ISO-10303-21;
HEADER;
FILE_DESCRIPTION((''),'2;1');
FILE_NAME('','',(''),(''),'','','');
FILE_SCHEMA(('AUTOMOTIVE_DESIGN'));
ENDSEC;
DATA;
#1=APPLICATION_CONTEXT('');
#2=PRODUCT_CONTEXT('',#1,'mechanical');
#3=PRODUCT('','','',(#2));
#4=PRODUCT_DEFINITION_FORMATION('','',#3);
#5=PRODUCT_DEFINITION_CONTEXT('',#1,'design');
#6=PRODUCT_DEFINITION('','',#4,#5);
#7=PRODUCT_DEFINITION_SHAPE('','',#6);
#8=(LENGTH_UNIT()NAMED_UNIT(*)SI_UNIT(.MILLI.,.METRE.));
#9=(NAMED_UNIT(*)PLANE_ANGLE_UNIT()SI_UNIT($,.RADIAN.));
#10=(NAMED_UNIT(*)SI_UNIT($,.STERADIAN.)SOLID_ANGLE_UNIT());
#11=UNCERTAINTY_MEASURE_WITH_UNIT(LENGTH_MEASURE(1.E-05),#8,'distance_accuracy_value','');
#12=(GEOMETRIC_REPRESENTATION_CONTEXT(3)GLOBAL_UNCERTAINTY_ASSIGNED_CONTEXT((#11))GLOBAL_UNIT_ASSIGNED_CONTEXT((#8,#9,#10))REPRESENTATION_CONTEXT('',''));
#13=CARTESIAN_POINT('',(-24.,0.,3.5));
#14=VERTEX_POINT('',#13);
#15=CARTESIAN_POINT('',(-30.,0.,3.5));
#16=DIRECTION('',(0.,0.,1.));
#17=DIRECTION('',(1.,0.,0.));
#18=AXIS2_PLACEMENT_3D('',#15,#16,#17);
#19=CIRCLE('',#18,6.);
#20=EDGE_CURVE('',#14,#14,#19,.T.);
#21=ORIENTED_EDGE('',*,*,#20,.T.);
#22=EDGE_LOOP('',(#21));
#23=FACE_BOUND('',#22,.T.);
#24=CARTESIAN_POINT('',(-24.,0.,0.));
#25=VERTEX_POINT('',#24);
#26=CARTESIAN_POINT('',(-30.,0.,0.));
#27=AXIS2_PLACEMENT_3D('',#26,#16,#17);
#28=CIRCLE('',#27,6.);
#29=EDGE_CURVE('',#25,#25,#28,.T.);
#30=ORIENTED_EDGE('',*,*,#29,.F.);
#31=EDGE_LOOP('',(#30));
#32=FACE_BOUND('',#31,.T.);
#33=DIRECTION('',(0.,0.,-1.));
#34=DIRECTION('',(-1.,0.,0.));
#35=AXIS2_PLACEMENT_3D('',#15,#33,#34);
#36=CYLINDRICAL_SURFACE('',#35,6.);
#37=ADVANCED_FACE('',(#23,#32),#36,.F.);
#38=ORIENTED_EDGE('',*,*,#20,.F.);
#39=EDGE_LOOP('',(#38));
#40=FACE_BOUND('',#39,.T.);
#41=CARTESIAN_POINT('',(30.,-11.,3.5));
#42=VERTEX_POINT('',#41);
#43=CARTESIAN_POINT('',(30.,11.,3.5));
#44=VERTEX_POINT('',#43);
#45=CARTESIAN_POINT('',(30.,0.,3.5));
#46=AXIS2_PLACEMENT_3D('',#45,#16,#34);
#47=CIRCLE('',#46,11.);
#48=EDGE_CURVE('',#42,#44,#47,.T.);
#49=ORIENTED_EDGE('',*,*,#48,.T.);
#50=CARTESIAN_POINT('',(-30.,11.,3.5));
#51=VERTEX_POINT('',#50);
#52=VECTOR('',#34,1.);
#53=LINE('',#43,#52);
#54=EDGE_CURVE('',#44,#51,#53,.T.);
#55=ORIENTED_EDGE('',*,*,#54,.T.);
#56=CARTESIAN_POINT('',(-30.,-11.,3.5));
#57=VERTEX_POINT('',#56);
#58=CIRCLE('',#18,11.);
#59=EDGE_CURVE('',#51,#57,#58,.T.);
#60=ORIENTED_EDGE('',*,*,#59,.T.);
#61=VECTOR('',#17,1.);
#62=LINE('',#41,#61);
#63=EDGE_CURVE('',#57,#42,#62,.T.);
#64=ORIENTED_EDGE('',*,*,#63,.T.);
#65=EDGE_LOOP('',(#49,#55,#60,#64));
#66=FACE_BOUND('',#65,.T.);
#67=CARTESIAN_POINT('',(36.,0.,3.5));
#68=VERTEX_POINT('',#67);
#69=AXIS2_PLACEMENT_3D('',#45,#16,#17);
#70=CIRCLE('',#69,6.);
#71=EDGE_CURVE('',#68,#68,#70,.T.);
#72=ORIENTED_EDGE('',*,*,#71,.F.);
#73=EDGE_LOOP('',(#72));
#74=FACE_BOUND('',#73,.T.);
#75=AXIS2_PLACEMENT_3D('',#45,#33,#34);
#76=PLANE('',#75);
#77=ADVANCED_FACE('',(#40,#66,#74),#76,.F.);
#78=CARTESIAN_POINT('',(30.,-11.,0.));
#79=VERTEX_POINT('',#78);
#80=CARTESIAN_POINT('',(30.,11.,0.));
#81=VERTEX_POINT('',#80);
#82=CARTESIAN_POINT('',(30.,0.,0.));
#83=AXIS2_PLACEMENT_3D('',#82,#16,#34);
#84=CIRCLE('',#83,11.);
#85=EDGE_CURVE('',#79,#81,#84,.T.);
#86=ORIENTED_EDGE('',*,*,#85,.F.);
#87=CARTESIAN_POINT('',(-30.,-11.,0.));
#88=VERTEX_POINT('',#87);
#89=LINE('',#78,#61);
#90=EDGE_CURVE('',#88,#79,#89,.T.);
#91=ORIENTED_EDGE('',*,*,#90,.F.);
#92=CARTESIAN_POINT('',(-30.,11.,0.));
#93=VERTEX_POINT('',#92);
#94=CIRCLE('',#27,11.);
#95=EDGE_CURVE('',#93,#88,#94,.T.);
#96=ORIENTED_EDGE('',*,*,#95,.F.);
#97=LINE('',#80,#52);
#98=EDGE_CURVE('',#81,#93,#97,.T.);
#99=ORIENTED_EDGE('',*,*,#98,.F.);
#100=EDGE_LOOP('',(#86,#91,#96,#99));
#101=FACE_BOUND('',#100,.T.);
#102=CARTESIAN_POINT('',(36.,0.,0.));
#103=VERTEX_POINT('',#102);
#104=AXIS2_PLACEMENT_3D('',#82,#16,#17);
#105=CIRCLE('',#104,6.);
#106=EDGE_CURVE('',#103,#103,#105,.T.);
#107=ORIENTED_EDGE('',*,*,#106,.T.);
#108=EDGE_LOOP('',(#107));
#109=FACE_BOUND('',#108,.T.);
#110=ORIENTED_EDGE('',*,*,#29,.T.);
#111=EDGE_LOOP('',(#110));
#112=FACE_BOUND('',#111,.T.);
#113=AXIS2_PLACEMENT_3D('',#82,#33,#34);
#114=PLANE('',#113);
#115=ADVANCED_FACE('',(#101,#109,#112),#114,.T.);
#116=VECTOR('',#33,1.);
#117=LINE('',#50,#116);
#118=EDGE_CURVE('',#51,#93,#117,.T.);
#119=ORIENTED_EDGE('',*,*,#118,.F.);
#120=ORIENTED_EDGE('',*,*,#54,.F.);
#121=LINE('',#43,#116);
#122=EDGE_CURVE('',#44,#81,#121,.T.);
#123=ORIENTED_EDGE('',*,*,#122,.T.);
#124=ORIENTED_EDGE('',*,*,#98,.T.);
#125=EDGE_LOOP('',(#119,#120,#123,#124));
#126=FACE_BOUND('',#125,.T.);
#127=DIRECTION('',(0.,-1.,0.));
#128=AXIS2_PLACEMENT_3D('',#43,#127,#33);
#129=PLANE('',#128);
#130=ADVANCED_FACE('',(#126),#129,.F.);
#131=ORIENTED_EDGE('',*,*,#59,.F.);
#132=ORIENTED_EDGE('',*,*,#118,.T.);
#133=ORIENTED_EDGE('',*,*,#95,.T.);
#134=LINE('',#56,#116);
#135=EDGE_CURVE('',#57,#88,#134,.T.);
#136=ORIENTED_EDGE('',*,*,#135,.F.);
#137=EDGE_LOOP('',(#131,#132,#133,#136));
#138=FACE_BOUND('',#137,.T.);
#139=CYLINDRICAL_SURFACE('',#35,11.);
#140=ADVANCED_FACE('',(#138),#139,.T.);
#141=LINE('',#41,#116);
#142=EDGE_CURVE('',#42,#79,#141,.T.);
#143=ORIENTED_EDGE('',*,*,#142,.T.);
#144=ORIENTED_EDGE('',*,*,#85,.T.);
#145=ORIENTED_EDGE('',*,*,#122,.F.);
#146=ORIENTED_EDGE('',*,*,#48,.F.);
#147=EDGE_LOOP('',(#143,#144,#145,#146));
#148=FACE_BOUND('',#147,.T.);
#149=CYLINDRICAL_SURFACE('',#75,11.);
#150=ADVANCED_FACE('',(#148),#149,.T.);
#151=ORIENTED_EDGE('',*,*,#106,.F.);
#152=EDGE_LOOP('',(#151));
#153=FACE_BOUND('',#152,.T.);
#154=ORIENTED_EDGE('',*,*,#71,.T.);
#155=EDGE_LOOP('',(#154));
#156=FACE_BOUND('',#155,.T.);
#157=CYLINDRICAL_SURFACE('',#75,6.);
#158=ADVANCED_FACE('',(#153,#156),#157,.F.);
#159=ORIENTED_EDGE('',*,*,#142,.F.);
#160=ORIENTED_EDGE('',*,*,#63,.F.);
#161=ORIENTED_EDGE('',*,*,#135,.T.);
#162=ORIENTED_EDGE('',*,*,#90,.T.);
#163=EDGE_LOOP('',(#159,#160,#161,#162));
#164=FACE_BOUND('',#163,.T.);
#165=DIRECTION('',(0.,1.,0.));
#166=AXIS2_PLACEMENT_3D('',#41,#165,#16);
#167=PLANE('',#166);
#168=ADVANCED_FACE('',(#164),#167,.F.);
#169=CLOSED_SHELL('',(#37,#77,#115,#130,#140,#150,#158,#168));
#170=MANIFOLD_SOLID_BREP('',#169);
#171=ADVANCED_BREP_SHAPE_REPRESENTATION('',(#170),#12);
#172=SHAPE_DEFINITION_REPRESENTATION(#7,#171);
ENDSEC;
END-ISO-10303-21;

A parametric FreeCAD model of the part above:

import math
import FreeCAD as App
import Part
import Sketcher

doc = App.newDocument("Part")
params = doc.addObject("Spreadsheet::Sheet", "Params")
for row, (alias, value) in enumerate([
    ("sketch1_diameter", "12 mm"),
    ("sketch1_radius", "11 mm"),
    ("sketch1_width", "60 mm"),
    ("pad1_length", "3.5 mm"),
], start=1):
    params.set(f"A{row}", alias)
    params.set(f"B{row}", "=" + value)
    params.setAlias(f"B{row}", alias)

body = doc.addObject("PartDesign::Body", "Body")

# Sketch on XY plane
sketch1 = body.newObject("Sketcher::SketchObject", "Sketch")
sketch1.AttachmentSupport = (doc.getObject("XY_Plane"), [""])
sketch1.MapMode = "FlatFace"
sketch1.addGeometry([
    Part.LineSegment(App.Vector(30, 11, 0), App.Vector(-30, 11, 0)),  # 0
    Part.ArcOfCircle(Part.Circle(App.Vector(-30, 0, 0), App.Vector(0, 0, 1), 11), math.radians(90), math.radians(270)),  # 1
    Part.LineSegment(App.Vector(-30, -11, 0), App.Vector(30, -11, 0)),  # 2
    Part.ArcOfCircle(Part.Circle(App.Vector(30, 0, 0), App.Vector(0, 0, 1), 11), math.radians(-90), math.radians(90)),  # 3
    Part.Circle(App.Vector(-30, 0, 0), App.Vector(0, 0, 1), 6),  # 4
    Part.Circle(App.Vector(30, 0, 0), App.Vector(0, 0, 1), 6),  # 5
], False)
sketch1.addConstraint([
    Sketcher.Constraint("Tangent", 0, 2, 1, 1),
    Sketcher.Constraint("Tangent", 1, 2, 2, 1),
    Sketcher.Constraint("Tangent", 2, 2, 3, 1),
    Sketcher.Constraint("Tangent", 3, 2, 0, 1),
    Sketcher.Constraint("Horizontal", 0),
    Sketcher.Constraint("Horizontal", 2),
    Sketcher.Constraint("Coincident", 4, 3, 1, 3),
    Sketcher.Constraint("Coincident", 5, 3, 3, 3),
    Sketcher.Constraint("Equal", 4, 5),
    Sketcher.Constraint("Symmetric", 1, 3, 3, 3, -1, 1),
    Sketcher.Constraint("Diameter", 4, 12.0),
    Sketcher.Constraint("Radius", 1, 11.0),
    Sketcher.Constraint("DistanceX", 0, 2, 0, 1, 60.0),
])
sketch1.setExpression("Constraints[10]", "Params.sketch1_diameter")
sketch1.setExpression("Constraints[11]", "Params.sketch1_radius")
sketch1.setExpression("Constraints[12]", "Params.sketch1_width")
pad1 = body.newObject("PartDesign::Pad", "Pad")
pad1.Profile = sketch1
pad1.setExpression("Length", "Params.pad1_length")

doc.recompute()
